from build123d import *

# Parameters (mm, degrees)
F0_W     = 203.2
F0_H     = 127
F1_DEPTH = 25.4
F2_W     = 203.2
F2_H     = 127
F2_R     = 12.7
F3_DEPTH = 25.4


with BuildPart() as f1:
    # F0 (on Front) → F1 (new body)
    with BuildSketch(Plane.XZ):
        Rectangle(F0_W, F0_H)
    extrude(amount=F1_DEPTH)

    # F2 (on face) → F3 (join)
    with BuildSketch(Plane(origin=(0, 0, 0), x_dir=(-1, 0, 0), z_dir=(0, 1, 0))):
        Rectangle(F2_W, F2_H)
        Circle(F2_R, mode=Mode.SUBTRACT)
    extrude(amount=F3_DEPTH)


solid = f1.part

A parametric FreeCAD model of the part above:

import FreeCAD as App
import Part
import Sketcher
Q = App.Units.Quantity


def add_polygon(sketch, points):
    """Adds a closed chain of lines whose ends are joined by coincident constraints."""
    first, n = sketch.GeometryCount, len(points)
    for a, b in zip(points, points[1:] + points[:1]):
        sketch.addGeometry(Part.LineSegment(App.Vector(*a, 0), App.Vector(*b, 0)), False)
    for i in range(n):
        sketch.addConstraint(Sketcher.Constraint("Coincident", first + i, 2, first + (i + 1) % n, 1))

doc = App.newDocument("Part")
body = doc.addObject("PartDesign::Body", "Body")

sketch1 = body.newObject("Sketcher::SketchObject", "Sketch")
sketch1.AttachmentSupport = (doc.getObject("XZ_Plane"), [""])
sketch1.MapMode = "FlatFace"
add_polygon(sketch1, [(-102, 64), (-102, -64), (102, -64), (102, 64)])
sketch1.addConstraint([
    Sketcher.Constraint("Vertical", 0),
    Sketcher.Constraint("Horizontal", 1),
    Sketcher.Constraint("Vertical", 2),
    Sketcher.Constraint("Horizontal", 3),
    Sketcher.Constraint("Symmetric", 0, 2, 2, 2, -1, 1),
    Sketcher.Constraint("DistanceX", 1, 1, 1, 2, Q("8 in")),
    Sketcher.Constraint("DistanceY", 0, 2, 0, 1, Q("5 in")),
])
pad1 = body.newObject("PartDesign::Pad", "Pad")
pad1.Profile = sketch1
pad1.Length = Q("1 in")

sketch2 = body.newObject("Sketcher::SketchObject", "Sketch001")
sketch2.AttachmentSupport = (doc.getObject("XZ_Plane"), [""])
sketch2.MapMode = "FlatFace"
add_polygon(sketch2, [(102, 64), (102, -64), (-102, -64), (-102, 64)])
sketch2.addGeometry(Part.Circle(App.Vector(0, 0, 0), App.Vector(0, 0, 1), 13), False)
sketch2.addConstraint([
    Sketcher.Constraint("Vertical", 0),
    Sketcher.Constraint("Horizontal", 1),
    Sketcher.Constraint("Vertical", 2),
    Sketcher.Constraint("Horizontal", 3),
    Sketcher.Constraint("Coincident", 4, 3, -1, 1),
    Sketcher.Constraint("Symmetric", 0, 2, 2, 2, -1, 1),
    Sketcher.Constraint("Diameter", 4, Q("1 in")),
    Sketcher.Constraint("DistanceX", 1, 2, 1, 1, Q("8 in")),
    Sketcher.Constraint("DistanceY", 0, 2, 0, 1, Q("5 in")),
])
pad2 = body.newObject("PartDesign::Pad", "Pad001")
pad2.Profile = sketch2
pad2.Length = Q("1 in")
pad2.Reversed = True

doc.recompute()
